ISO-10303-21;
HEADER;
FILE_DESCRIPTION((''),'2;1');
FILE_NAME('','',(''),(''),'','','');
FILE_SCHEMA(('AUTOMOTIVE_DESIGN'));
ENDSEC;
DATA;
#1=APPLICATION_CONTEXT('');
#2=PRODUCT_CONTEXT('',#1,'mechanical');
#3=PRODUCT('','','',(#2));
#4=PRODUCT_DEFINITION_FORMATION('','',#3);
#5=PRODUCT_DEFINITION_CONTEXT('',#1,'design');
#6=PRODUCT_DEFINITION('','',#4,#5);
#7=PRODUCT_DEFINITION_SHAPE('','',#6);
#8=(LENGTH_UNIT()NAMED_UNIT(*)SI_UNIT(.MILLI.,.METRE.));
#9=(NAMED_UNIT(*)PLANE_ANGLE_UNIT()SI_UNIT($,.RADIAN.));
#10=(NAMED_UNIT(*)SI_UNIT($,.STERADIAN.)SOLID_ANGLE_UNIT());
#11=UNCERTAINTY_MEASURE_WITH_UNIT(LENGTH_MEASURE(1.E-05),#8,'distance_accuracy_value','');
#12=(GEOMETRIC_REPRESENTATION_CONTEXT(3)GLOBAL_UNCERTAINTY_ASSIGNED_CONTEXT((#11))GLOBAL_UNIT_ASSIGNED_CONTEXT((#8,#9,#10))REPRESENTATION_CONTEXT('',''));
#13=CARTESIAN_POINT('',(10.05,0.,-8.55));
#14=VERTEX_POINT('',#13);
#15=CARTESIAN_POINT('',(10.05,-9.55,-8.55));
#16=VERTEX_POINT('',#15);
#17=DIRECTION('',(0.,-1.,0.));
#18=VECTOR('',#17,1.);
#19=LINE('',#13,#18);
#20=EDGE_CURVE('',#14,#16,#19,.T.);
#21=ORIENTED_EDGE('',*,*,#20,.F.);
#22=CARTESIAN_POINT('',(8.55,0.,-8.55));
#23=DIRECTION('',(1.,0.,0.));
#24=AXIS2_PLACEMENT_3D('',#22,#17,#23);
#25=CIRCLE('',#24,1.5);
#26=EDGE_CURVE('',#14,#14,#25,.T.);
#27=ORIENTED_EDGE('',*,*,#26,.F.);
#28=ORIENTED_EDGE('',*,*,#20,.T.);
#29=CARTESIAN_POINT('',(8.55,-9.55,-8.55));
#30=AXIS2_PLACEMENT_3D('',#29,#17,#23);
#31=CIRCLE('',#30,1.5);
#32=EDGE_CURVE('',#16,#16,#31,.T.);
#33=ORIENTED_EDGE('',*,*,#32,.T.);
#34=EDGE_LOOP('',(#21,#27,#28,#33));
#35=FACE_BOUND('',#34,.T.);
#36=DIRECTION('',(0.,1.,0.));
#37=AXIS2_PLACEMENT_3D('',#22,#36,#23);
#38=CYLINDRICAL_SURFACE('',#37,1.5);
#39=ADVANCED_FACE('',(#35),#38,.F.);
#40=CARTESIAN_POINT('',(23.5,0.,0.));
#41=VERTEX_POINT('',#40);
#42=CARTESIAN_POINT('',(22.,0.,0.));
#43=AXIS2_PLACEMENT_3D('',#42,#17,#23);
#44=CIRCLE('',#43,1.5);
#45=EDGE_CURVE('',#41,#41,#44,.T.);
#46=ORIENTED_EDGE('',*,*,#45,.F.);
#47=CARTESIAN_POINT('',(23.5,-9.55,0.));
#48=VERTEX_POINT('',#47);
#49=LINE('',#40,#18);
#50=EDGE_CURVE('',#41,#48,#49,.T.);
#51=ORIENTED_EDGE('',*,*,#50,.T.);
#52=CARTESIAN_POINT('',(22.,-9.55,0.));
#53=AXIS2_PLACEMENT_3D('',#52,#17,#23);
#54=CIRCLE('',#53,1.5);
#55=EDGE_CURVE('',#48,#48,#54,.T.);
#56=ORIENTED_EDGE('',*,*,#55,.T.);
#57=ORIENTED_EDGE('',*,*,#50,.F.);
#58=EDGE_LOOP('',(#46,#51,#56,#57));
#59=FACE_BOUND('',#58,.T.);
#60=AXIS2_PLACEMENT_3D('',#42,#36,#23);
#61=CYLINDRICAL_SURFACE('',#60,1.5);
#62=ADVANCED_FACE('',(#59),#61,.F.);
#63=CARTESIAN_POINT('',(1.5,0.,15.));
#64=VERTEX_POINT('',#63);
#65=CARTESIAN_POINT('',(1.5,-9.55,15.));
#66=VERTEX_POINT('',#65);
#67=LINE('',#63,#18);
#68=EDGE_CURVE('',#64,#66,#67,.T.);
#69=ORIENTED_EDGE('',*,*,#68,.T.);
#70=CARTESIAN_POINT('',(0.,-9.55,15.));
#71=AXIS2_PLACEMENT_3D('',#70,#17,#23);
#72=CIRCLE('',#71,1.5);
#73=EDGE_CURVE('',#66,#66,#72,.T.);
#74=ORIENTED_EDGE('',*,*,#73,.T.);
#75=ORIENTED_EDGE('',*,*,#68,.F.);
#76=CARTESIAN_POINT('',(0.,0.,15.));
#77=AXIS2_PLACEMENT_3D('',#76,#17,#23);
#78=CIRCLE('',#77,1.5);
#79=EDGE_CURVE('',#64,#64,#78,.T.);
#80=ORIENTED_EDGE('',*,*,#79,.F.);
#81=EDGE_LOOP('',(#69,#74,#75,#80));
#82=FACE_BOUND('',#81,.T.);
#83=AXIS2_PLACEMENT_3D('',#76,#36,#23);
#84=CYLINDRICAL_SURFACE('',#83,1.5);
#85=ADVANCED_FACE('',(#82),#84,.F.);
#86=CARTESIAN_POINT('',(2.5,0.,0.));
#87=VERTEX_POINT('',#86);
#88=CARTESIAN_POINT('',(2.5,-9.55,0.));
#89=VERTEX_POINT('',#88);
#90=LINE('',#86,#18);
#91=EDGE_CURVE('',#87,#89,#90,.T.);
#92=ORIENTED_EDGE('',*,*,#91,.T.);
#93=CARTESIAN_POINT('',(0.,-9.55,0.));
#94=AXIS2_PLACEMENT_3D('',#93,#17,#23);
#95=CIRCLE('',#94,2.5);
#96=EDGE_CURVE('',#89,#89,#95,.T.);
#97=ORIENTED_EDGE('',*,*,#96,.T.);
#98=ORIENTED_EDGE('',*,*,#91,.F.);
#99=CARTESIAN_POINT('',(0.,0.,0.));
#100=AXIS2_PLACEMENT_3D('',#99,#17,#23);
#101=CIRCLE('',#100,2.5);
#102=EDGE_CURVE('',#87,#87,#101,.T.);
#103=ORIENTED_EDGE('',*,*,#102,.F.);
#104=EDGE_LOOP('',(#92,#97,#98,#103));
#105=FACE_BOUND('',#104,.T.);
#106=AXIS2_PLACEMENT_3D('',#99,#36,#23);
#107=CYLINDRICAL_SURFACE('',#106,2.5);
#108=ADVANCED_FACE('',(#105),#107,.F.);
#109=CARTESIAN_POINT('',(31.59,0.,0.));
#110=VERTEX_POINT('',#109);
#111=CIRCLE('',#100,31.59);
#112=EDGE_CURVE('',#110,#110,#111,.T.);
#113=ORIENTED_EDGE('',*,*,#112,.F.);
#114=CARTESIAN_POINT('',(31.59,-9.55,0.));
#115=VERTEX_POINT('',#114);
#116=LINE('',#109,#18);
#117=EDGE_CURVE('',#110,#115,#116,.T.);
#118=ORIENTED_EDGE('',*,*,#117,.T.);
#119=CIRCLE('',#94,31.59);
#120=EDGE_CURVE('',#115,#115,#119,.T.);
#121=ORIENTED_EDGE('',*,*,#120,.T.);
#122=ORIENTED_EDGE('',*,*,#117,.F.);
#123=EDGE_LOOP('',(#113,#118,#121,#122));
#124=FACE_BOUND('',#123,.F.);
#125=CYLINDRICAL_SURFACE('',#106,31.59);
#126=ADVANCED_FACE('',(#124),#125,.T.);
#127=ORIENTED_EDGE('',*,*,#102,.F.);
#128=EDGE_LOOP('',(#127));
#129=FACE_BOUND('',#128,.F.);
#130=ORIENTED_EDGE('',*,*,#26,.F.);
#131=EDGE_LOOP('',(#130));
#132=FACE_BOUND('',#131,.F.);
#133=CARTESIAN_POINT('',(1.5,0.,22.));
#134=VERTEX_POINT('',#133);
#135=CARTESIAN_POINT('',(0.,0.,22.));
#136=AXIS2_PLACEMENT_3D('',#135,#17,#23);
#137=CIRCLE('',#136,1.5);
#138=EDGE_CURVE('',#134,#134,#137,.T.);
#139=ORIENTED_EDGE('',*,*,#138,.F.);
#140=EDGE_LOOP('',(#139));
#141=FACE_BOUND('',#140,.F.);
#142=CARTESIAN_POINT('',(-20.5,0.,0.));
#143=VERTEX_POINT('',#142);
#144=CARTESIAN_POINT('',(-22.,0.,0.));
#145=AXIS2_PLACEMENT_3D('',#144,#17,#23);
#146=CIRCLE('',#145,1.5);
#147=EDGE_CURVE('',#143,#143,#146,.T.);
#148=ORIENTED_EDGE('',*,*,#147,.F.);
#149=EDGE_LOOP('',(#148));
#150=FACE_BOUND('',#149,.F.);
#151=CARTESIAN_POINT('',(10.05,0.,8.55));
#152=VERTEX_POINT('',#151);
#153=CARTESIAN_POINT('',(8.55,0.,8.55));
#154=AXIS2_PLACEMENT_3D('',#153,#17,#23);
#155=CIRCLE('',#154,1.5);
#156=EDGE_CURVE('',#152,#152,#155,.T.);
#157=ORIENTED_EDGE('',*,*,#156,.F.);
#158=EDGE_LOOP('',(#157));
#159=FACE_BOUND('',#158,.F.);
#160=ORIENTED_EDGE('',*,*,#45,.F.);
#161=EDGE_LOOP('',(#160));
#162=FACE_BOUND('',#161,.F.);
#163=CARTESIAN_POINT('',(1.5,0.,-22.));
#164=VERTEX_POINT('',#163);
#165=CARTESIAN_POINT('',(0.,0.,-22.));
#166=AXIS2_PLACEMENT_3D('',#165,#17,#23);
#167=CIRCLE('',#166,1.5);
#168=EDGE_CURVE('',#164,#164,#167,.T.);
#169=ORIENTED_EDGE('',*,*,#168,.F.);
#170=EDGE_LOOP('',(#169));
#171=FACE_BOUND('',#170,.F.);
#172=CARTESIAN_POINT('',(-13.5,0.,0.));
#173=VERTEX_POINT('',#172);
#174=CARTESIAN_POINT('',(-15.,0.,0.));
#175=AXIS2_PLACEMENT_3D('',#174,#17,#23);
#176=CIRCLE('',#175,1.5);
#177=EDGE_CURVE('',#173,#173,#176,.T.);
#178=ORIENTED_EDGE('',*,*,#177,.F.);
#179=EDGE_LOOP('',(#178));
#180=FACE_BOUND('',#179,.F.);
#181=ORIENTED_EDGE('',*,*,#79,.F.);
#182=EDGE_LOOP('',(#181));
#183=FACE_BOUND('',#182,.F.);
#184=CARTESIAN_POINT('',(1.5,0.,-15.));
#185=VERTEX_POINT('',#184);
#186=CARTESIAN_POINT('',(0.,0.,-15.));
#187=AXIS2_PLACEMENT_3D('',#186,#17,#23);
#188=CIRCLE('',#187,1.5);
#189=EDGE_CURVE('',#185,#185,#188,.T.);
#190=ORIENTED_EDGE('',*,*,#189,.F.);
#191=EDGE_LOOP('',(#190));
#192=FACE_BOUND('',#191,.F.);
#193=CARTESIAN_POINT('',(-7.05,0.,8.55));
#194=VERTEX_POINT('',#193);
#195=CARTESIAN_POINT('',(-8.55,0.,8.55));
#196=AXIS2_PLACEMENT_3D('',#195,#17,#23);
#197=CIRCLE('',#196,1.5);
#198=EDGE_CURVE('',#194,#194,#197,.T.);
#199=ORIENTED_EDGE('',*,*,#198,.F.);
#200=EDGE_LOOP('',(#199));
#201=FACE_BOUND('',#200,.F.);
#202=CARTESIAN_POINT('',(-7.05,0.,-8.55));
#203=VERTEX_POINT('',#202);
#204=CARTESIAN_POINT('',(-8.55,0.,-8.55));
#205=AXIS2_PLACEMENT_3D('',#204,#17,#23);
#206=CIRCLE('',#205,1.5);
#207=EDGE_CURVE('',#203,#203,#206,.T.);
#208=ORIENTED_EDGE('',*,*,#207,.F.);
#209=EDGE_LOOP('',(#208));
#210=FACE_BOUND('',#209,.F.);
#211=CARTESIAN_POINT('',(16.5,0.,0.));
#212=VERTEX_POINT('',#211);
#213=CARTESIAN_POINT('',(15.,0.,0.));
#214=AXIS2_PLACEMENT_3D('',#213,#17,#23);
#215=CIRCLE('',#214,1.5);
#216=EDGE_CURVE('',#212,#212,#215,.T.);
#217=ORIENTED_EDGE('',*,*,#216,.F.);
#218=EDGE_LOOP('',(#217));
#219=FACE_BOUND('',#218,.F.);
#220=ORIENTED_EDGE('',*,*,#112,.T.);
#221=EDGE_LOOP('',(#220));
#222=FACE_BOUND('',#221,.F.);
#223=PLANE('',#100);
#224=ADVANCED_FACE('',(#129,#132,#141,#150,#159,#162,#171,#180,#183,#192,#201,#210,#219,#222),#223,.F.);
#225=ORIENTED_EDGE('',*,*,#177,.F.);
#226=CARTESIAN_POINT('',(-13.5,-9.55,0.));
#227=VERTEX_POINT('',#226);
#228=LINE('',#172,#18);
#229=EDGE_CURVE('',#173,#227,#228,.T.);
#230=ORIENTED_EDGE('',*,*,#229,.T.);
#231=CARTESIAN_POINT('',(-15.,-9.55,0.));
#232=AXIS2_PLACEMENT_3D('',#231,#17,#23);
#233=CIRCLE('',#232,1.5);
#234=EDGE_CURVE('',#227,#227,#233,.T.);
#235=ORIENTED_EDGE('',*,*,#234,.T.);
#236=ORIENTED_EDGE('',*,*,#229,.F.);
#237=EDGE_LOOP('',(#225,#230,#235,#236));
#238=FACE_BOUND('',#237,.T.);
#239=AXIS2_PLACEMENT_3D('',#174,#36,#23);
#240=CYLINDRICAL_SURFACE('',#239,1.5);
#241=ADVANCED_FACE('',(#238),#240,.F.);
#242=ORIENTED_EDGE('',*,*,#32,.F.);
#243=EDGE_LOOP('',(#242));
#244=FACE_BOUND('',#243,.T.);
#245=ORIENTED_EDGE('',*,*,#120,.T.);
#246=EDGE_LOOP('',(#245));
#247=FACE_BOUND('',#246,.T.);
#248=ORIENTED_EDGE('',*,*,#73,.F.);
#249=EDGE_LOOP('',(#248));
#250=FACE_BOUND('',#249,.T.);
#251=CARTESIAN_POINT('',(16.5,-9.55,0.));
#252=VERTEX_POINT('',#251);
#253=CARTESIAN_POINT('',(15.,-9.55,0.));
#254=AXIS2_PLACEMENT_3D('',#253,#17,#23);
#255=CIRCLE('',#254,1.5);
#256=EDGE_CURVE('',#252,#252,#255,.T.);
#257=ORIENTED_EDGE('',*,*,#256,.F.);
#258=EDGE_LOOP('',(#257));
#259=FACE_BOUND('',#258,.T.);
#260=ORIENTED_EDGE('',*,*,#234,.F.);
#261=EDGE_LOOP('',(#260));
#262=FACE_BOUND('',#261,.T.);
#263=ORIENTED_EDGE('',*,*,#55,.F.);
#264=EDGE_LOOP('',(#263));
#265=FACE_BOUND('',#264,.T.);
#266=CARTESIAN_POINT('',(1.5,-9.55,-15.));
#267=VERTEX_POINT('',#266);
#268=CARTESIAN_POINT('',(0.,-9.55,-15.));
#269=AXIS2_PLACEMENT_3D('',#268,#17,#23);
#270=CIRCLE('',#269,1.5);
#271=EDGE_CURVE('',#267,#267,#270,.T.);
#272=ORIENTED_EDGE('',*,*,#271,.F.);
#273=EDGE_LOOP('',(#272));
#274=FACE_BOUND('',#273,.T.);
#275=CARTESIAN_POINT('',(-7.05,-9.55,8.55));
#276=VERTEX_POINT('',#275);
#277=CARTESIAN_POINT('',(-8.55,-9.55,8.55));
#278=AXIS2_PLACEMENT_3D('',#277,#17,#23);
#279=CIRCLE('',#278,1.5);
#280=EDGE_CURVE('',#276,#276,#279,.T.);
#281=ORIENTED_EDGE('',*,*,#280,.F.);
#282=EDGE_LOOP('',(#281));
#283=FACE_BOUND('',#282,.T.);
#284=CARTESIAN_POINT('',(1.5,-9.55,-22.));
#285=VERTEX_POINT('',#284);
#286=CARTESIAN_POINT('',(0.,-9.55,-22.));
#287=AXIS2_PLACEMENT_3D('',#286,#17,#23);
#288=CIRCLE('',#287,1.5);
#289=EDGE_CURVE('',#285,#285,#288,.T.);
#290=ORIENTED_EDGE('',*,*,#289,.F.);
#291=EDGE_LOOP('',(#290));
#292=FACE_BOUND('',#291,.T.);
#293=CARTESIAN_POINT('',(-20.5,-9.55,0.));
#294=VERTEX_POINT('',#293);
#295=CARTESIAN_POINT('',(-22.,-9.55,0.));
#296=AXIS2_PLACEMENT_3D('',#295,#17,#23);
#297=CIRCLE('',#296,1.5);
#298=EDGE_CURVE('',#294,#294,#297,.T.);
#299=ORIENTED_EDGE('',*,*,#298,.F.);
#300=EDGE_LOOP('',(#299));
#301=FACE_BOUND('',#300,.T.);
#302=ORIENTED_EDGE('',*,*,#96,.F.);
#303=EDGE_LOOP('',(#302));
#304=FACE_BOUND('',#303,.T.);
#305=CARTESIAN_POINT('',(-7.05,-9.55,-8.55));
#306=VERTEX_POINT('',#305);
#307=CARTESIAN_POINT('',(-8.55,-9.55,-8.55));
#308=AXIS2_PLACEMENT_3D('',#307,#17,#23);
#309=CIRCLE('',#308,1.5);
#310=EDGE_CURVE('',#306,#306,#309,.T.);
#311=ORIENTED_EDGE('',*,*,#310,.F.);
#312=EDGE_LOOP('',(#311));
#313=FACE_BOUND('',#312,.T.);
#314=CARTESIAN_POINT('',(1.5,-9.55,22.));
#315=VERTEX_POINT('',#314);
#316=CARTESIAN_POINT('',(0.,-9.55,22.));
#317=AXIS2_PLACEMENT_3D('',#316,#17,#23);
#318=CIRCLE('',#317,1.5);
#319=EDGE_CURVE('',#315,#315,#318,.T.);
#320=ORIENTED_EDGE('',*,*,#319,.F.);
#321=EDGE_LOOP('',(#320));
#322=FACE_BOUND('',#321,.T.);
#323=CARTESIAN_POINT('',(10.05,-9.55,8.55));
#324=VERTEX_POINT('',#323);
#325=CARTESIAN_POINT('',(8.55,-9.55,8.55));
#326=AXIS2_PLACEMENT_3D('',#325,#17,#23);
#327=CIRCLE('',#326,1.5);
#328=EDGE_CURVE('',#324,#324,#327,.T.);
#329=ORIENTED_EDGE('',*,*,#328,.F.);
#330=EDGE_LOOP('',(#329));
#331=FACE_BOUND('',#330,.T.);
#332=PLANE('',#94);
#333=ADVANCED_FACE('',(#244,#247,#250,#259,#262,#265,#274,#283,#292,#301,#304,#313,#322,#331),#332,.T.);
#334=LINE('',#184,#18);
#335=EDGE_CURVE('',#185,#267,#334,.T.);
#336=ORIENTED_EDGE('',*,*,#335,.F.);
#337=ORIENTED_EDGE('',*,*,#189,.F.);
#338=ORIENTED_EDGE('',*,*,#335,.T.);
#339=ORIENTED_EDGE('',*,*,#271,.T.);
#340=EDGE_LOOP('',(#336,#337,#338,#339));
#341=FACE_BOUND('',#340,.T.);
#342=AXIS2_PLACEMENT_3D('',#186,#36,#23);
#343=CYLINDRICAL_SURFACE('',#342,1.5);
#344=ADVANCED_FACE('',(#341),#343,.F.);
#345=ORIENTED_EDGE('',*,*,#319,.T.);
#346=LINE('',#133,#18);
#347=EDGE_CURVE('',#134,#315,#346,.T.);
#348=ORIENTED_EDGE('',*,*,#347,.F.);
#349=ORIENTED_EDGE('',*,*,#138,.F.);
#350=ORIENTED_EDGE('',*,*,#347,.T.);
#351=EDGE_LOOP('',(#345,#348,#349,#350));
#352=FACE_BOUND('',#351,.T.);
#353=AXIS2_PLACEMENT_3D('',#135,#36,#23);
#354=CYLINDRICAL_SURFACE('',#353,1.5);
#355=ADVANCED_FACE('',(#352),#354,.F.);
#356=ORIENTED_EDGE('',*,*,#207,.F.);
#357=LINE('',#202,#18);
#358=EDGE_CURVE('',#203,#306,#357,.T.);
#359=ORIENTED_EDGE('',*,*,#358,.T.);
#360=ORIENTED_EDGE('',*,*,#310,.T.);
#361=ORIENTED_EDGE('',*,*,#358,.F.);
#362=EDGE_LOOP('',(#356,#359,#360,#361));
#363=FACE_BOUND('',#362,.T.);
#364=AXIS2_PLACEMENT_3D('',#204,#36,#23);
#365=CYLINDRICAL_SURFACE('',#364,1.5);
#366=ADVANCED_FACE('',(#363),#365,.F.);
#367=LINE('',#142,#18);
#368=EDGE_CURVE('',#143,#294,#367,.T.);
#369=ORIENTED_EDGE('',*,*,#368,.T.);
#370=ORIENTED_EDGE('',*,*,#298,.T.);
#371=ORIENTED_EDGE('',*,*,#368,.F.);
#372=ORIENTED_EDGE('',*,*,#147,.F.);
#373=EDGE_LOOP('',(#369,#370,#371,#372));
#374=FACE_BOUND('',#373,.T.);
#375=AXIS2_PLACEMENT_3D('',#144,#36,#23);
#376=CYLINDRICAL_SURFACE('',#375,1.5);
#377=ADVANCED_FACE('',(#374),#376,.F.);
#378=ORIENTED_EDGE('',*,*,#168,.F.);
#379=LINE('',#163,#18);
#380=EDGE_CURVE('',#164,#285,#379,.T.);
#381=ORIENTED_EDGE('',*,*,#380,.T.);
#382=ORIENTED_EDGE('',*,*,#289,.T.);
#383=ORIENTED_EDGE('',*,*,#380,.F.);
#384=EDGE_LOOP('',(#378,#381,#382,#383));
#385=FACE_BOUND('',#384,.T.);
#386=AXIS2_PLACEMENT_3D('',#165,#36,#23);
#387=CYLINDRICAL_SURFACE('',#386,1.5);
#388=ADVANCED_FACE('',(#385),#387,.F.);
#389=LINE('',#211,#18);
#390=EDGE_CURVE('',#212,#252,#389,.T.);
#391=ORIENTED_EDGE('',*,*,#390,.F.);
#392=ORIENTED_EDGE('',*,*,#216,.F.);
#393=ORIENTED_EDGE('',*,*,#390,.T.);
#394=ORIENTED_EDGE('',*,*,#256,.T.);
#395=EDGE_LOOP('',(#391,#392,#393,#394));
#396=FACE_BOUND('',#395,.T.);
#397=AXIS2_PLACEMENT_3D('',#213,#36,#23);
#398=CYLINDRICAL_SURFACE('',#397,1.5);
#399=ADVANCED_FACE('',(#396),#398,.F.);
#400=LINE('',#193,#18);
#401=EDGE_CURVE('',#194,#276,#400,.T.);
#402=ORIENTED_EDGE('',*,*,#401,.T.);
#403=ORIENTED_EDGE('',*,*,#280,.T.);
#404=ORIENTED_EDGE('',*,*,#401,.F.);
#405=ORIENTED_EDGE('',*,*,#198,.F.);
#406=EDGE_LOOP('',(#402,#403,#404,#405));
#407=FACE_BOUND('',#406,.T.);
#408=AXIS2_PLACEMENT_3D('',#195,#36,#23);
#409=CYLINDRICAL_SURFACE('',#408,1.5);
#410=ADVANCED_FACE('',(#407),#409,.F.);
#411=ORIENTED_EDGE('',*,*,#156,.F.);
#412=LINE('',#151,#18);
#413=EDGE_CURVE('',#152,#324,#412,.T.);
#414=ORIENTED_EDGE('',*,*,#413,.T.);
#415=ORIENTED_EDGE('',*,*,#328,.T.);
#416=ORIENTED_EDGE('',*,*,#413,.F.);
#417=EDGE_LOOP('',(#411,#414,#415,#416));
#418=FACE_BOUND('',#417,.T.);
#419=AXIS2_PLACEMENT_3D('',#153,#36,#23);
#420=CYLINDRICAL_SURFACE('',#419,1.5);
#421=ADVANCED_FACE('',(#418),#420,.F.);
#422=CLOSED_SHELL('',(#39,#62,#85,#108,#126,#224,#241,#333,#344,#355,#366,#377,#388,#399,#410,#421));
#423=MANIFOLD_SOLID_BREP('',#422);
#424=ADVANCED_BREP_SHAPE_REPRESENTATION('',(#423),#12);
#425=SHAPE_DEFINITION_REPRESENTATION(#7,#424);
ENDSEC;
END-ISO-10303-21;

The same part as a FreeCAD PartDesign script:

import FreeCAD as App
import Part
import Sketcher
from FreeCAD import Vector
Q = App.Units.Quantity

doc = App.newDocument("Part")
body = doc.addObject("PartDesign::Body", "Body")

sketch1 = body.newObject("Sketcher::SketchObject", "Sketch")
sketch1.AttachmentSupport = (doc.getObject("XZ_Plane"), [""])
sketch1.MapMode = "FlatFace"
sketch1.addGeometry([
    Part.Circle(Vector(0, 0, 0), Vector(0, 0, 1), 31.6),
    Part.Circle(Vector(-8.6, -8.6, 0), Vector(0, 0, 1), 1.5),
    Part.Circle(Vector(0, -22, 0), Vector(0, 0, 1), 1.5),
    Part.Circle(Vector(0, -15, 0), Vector(0, 0, 1), 1.5),
    Part.Circle(Vector(8.6, -8.6, 0), Vector(0, 0, 1), 1.5),
    Part.Circle(Vector(-22, 0, 0), Vector(0, 0, 1), 1.5),
    Part.Circle(Vector(-15, 0, 0), Vector(0, 0, 1), 1.5),
    Part.Circle(Vector(-8.6, 8.6, 0), Vector(0, 0, 1), 1.5),
    Part.Circle(Vector(0, 0, 0), Vector(0, 0, 1), 2.5),
    Part.Circle(Vector(8.6, 8.6, 0), Vector(0, 0, 1), 1.5),
    Part.Circle(Vector(15, 0, 0), Vector(0, 0, 1), 1.5),
    Part.Circle(Vector(22, 0, 0), Vector(0, 0, 1), 1.5),
    Part.Circle(Vector(0, 15, 0), Vector(0, 0, 1), 1.5),
    Part.Circle(Vector(0, 22, 0), Vector(0, 0, 1), 1.5),
], False)
sketch1.addConstraint([
    Sketcher.Constraint("Coincident", 0, 3, -1, 1),
    Sketcher.Constraint("Coincident", 8, 3, -1, 1),
    Sketcher.Constraint("Equal", 1, 2),
    Sketcher.Constraint("Equal", 2, 3),
    Sketcher.Constraint("Equal", 3, 4),
    Sketcher.Constraint("Equal", 4, 5),
    Sketcher.Constraint("Equal", 5, 6),
    Sketcher.Constraint("Equal", 6, 7),
    Sketcher.Constraint("Equal", 7, 9),
    Sketcher.Constraint("Equal", 9, 10),
    Sketcher.Constraint("Equal", 10, 11),
    Sketcher.Constraint("Equal", 11, 12),
    Sketcher.Constraint("Equal", 12, 13),
    Sketcher.Constraint("Symmetric", 4, 3, 7, 3, -1, 1),
    Sketcher.Constraint("Symmetric", 1, 3, 9, 3, -1, 1),
    Sketcher.Constraint("Symmetric", 6, 3, 10, 3, -1, 1),
    Sketcher.Constraint("Symmetric", 5, 3, 11, 3, -1, 1),
    Sketcher.Constraint("Symmetric", 3, 3, 12, 3, -1, 1),
    Sketcher.Constraint("Symmetric", 2, 3, 13, 3, -1, 1),
    Sketcher.Constraint("Symmetric", 1, 3, 4, 3, -2),
    Sketcher.Constraint("PointOnObject", 2, 3, -2),
    Sketcher.Constraint("PointOnObject", 3, 3, -2),
    Sketcher.Constraint("PointOnObject", 5, 3, -1),
    Sketcher.Constraint("PointOnObject", 6, 3, -1),
    Sketcher.Constraint("Diameter", 1, Q("3 mm")),
    Sketcher.Constraint("Diameter", 8, Q("5 mm")),
    Sketcher.Constraint("Diameter", 0, Q("63.18 mm")),
    Sketcher.Constraint("DistanceY", 2, 3, -1, 1, Q("22 mm")),
    Sketcher.Constraint("DistanceY", 3, 3, -1, 1, Q("15 mm")),
    Sketcher.Constraint("DistanceX", 5, 3, -1, 1, Q("22 mm")),
    Sketcher.Constraint("DistanceX", 6, 3, -1, 1, Q("15 mm")),
    Sketcher.Constraint("DistanceX", 1, 3, 4, 3, Q("17.1 mm")),
    Sketcher.Constraint("DistanceY", 1, 3, 7, 3, Q("17.1 mm")),
])
pad1 = body.newObject("PartDesign::Pad", "Pad")
pad1.Profile = sketch1
pad1.Length = 9.55

doc.recompute()
